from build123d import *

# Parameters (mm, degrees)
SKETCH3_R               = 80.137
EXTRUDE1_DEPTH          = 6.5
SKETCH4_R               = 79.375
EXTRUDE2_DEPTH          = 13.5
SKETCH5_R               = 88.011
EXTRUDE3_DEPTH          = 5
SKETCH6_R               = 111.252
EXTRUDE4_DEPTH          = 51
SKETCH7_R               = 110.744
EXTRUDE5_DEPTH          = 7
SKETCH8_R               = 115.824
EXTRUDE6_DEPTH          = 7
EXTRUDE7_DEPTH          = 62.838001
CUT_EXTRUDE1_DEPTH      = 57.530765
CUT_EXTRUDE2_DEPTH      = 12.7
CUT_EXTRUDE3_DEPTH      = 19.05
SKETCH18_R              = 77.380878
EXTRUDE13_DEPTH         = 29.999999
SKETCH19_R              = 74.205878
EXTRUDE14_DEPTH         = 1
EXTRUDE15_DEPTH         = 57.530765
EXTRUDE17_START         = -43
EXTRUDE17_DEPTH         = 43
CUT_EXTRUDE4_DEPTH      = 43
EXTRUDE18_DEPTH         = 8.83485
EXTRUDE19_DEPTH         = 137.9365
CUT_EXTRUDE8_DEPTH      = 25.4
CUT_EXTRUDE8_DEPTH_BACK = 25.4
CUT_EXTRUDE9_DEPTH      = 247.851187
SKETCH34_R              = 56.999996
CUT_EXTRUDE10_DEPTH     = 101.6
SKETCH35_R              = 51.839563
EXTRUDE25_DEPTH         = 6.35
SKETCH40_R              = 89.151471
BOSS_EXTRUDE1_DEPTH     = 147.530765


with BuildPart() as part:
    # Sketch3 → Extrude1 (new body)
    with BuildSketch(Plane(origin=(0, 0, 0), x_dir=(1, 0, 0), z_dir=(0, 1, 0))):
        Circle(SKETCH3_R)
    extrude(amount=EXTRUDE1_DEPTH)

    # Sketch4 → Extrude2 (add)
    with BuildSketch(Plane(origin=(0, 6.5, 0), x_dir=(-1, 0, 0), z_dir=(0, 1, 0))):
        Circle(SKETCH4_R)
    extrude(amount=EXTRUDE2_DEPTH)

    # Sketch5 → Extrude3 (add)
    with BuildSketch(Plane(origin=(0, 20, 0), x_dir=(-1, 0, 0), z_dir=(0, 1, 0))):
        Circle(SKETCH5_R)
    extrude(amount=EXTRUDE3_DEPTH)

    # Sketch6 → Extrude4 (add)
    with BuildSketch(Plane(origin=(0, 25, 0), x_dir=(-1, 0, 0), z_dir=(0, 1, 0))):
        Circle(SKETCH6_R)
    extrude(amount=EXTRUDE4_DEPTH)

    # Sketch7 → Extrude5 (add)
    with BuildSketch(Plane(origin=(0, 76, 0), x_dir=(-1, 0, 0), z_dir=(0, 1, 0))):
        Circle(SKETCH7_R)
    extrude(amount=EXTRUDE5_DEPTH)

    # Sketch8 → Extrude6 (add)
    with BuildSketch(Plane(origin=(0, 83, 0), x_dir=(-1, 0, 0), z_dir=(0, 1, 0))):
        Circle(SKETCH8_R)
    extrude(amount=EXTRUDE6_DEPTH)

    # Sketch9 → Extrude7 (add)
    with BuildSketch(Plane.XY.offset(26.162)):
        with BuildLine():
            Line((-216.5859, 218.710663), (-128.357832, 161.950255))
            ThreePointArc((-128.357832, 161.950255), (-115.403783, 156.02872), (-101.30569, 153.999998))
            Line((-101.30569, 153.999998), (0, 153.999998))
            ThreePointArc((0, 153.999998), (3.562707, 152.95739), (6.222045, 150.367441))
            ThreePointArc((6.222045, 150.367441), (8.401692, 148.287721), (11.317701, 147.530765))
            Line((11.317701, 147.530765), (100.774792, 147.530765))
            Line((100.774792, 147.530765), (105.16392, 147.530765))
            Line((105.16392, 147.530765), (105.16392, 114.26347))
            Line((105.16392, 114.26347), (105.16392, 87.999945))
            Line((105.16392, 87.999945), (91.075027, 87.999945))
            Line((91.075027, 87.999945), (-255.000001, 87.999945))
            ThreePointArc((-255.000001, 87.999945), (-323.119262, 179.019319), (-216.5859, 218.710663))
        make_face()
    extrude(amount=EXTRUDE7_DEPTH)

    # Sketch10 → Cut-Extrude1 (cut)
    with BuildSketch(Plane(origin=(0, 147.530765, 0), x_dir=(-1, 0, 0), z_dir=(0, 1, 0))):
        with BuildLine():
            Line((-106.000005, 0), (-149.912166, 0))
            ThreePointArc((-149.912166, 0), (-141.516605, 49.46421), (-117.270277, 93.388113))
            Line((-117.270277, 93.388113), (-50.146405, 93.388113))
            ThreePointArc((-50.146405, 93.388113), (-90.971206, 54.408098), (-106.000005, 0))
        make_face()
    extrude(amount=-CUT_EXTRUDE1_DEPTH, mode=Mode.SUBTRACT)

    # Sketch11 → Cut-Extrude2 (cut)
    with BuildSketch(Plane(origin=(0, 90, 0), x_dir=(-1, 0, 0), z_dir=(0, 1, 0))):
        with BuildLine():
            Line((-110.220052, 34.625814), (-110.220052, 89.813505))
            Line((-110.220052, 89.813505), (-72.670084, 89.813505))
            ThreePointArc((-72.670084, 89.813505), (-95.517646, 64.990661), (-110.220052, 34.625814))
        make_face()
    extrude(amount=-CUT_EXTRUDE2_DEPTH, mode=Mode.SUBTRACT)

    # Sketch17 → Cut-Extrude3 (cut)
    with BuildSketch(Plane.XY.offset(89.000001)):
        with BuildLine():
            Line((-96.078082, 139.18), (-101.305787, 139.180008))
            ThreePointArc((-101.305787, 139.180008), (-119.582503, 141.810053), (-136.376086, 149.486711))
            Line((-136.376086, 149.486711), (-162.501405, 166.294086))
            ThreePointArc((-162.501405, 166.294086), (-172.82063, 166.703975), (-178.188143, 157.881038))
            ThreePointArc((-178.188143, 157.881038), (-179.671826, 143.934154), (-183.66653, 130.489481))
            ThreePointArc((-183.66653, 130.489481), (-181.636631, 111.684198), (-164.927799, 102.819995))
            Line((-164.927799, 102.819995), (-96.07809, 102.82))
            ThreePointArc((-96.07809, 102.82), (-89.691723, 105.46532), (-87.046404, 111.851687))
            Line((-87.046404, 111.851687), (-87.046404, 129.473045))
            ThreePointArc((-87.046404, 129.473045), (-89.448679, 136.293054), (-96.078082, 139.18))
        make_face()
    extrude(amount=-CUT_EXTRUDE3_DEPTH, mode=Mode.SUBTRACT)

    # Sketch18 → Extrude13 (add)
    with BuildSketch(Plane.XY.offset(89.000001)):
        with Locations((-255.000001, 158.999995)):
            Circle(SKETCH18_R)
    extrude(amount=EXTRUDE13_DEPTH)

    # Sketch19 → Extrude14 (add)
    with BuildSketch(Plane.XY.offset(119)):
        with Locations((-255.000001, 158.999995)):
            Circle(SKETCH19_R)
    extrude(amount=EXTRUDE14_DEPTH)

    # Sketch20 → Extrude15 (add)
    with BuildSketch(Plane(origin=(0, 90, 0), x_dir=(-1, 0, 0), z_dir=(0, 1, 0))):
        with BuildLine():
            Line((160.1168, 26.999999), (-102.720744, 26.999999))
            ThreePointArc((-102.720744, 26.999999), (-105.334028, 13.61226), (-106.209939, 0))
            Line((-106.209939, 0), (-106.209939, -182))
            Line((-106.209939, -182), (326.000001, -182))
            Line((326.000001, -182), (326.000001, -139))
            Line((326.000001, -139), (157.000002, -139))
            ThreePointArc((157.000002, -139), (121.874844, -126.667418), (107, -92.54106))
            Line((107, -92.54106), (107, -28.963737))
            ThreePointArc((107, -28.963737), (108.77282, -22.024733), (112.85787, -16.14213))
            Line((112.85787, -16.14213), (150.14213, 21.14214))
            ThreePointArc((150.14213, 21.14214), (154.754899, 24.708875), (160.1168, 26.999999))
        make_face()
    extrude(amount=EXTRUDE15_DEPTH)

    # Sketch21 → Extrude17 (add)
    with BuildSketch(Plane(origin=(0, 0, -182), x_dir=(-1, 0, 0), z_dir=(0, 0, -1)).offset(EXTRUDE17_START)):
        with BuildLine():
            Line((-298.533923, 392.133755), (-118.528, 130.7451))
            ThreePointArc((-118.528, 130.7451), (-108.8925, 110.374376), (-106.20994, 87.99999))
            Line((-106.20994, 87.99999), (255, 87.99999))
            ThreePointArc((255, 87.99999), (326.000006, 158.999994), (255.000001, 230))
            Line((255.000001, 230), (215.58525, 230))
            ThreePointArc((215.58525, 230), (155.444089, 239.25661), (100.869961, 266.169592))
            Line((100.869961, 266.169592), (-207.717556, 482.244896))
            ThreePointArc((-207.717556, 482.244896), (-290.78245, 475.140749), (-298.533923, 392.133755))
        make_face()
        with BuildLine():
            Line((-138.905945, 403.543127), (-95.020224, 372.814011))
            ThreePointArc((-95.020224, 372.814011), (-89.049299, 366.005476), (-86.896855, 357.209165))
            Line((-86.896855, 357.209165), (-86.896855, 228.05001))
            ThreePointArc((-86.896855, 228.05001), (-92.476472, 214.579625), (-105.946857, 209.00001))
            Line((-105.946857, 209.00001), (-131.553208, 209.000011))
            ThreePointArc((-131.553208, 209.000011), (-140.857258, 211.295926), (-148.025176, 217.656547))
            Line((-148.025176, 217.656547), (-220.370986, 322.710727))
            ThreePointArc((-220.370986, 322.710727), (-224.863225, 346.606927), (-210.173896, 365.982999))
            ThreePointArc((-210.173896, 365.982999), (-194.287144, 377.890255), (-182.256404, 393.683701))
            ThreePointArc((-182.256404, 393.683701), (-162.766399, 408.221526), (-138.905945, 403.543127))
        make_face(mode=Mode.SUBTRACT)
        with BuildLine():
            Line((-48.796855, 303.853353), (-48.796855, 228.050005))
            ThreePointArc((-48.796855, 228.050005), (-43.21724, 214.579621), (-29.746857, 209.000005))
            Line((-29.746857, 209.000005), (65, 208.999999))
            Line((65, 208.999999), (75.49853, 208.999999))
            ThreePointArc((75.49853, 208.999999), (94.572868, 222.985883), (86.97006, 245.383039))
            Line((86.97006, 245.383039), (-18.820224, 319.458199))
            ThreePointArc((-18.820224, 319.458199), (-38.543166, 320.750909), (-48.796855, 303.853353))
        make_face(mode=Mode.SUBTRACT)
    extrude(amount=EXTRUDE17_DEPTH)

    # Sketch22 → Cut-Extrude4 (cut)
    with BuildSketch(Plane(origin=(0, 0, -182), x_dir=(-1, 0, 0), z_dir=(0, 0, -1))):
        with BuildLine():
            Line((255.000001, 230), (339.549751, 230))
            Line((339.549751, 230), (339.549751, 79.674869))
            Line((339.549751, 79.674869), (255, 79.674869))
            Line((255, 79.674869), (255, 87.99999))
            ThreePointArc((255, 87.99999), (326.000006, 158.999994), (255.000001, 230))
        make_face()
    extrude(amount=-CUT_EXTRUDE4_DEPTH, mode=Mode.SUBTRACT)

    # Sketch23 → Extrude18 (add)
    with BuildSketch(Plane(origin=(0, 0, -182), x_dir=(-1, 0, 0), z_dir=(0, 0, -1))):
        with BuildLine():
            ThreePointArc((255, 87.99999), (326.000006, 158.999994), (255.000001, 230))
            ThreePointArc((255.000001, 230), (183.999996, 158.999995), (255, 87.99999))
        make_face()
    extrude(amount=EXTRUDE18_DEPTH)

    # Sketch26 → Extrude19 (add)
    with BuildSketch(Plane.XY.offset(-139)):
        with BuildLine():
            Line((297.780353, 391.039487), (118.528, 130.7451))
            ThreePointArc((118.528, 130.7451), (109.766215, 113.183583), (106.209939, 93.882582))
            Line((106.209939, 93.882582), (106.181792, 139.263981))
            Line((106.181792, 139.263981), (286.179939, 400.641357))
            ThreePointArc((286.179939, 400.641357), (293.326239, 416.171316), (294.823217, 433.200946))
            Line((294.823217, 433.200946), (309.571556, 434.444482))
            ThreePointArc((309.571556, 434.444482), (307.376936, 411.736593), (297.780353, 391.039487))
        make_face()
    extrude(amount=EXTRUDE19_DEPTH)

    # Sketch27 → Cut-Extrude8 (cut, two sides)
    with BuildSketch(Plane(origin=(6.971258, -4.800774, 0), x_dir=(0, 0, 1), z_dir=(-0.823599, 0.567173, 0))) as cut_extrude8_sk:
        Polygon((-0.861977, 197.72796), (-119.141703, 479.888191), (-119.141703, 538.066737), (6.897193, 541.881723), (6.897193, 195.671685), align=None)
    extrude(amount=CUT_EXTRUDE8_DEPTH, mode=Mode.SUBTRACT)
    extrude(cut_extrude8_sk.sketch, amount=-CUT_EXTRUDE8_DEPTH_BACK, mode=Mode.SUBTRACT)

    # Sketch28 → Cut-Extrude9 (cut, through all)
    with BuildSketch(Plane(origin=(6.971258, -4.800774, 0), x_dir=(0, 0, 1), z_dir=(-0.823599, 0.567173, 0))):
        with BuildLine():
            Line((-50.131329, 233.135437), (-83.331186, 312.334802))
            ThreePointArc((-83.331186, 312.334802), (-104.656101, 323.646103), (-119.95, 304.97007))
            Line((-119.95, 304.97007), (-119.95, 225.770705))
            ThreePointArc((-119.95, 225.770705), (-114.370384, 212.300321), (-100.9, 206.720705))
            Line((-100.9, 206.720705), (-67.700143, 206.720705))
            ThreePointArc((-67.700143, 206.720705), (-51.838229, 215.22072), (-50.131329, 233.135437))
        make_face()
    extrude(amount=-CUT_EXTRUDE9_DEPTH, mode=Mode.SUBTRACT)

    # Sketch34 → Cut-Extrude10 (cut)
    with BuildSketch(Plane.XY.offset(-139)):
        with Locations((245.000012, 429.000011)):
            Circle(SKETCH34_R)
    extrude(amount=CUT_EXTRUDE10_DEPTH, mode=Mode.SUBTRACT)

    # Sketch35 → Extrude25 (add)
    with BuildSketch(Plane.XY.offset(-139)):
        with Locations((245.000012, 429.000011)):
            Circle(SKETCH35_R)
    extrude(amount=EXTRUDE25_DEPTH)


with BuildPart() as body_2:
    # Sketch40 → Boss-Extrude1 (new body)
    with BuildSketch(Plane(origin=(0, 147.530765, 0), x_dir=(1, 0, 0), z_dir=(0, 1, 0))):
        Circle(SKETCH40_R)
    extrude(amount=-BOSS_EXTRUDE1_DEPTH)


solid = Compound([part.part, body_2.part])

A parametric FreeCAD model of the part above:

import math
import FreeCAD as App
import Part
import Sketcher

V = App.Vector
Q = App.Units.Quantity

doc = App.newDocument("Part")
body = doc.addObject("PartDesign::Body", "Body")

# Sketch on XZ plane
sketch1 = body.newObject("Sketcher::SketchObject", "Sketch")
sketch1.AttachmentSupport = (doc.getObject("XZ_Plane"), [""])
sketch1.MapMode = "FlatFace"
sketch1.addGeometry(Part.Circle(V(0, 0, 0), V(0, 0, 1), 80), False)
sketch1.addConstraint(Sketcher.Constraint("Coincident", 0, 3, -1, 1))
sketch1.addConstraint(Sketcher.Constraint("Diameter", 0, Q("6.31 in")))
pad1 = body.newObject("PartDesign::Pad", "Pad")
pad1.Profile = sketch1
pad1.Length = 6.5
pad1.Reversed = True

# Sketch on XZ plane
sketch2 = body.newObject("Sketcher::SketchObject", "Sketch001")
sketch2.AttachmentSupport = (doc.getObject("XZ_Plane"), [""])
sketch2.MapMode = "FlatFace"
sketch2.AttachmentOffset = App.Placement(V(0, 0, -6.5), App.Rotation())
sketch2.addGeometry(Part.Circle(V(0, 0, 0), V(0, 0, 1), 79), False)
sketch2.addConstraint(Sketcher.Constraint("Coincident", 0, 3, -1, 1))
sketch2.addConstraint(Sketcher.Constraint("Diameter", 0, Q("6.25 in")))
pad2 = body.newObject("PartDesign::Pad", "Pad001")
pad2.Profile = sketch2
pad2.Length = 13.5
pad2.Reversed = True

# Sketch on XZ plane
sketch3 = body.newObject("Sketcher::SketchObject", "Sketch002")
sketch3.AttachmentSupport = (doc.getObject("XZ_Plane"), [""])
sketch3.MapMode = "FlatFace"
sketch3.AttachmentOffset = App.Placement(V(0, 0, -20), App.Rotation())
sketch3.addGeometry(Part.Circle(V(0, 0, 0), V(0, 0, 1), 88), False)
sketch3.addConstraint(Sketcher.Constraint("Coincident", 0, 3, -1, 1))
sketch3.addConstraint(Sketcher.Constraint("Diameter", 0, Q("6.93 in")))
pad3 = body.newObject("PartDesign::Pad", "Pad002")
pad3.Profile = sketch3
pad3.Length = 5
pad3.Reversed = True

# Sketch on XZ plane
sketch4 = body.newObject("Sketcher::SketchObject", "Sketch003")
sketch4.AttachmentSupport = (doc.getObject("XZ_Plane"), [""])
sketch4.MapMode = "FlatFace"
sketch4.AttachmentOffset = App.Placement(V(0, 0, -25), App.Rotation())
sketch4.addGeometry(Part.Circle(V(0, 0, 0), V(0, 0, 1), 111), False)
sketch4.addConstraint(Sketcher.Constraint("Coincident", 0, 3, -1, 1))
sketch4.addConstraint(Sketcher.Constraint("Diameter", 0, Q("8.76 in")))
pad4 = body.newObject("PartDesign::Pad", "Pad003")
pad4.Profile = sketch4
pad4.Length = 51
pad4.Reversed = True

# Sketch on XZ plane
sketch5 = body.newObject("Sketcher::SketchObject", "Sketch004")
sketch5.AttachmentSupport = (doc.getObject("XZ_Plane"), [""])
sketch5.MapMode = "FlatFace"
sketch5.AttachmentOffset = App.Placement(V(0, 0, -76), App.Rotation())
sketch5.addGeometry(Part.Circle(V(0, 0, 0), V(0, 0, 1), 111), False)
sketch5.addConstraint(Sketcher.Constraint("Coincident", 0, 3, -1, 1))
sketch5.addConstraint(Sketcher.Constraint("Diameter", 0, Q("8.72 in")))
pad5 = body.newObject("PartDesign::Pad", "Pad004")
pad5.Profile = sketch5
pad5.Length = 7
pad5.Reversed = True

# Sketch on XZ plane
sketch6 = body.newObject("Sketcher::SketchObject", "Sketch005")
sketch6.AttachmentSupport = (doc.getObject("XZ_Plane"), [""])
sketch6.MapMode = "FlatFace"
sketch6.AttachmentOffset = App.Placement(V(0, 0, -83), App.Rotation())
sketch6.addGeometry(Part.Circle(V(0, 0, 0), V(0, 0, 1), 116), False)
sketch6.addConstraint(Sketcher.Constraint("Coincident", 0, 3, -1, 1))
sketch6.addConstraint(Sketcher.Constraint("Diameter", 0, Q("9.12 in")))
pad6 = body.newObject("PartDesign::Pad", "Pad005")
pad6.Profile = sketch6
pad6.Length = 7
pad6.Reversed = True

# Sketch on XY plane
sketch7 = body.newObject("Sketcher::SketchObject", "Sketch006")
sketch7.AttachmentSupport = (doc.getObject("XY_Plane"), [""])
sketch7.MapMode = "FlatFace"
sketch7.AttachmentOffset = App.Placement(V(0, 0, 1.03 * 25.4), App.Rotation())
sketch7.addGeometry(Part.LineSegment(V(-128, 162, 0), V(-217, 219, 0)), False)
sketch7.addGeometry(Part.ArcOfCircle(Part.Circle(V(-255, 159, 0), V(0, 0, 1), 71), math.radians(57), math.radians(270)), False)
sketch7.addGeometry(Part.LineSegment(V(-255, 88, 0), V(105, 88, 0)), False)
sketch7.addGeometry(Part.LineSegment(V(105, 88, 0), V(105, 148, 0)), False)
sketch7.addGeometry(Part.LineSegment(V(105, 148, 0), V(11, 148, 0)), False)
sketch7.addGeometry(Part.ArcOfCircle(Part.Circle(V(11, 154, 0), V(0, 0, 1), 6), math.radians(-148), math.radians(-90)), False)
sketch7.addGeometry(Part.ArcOfCircle(Part.Circle(V(0, 146, 0), V(0, 0, 1), 8), math.radians(32), math.radians(88)), False)
sketch7.addGeometry(Part.LineSegment(V(0, 154, 0), V(-101, 154, 0)), False)
sketch7.addGeometry(Part.ArcOfCircle(Part.Circle(V(-101, 204, 0), V(0, 0, 1), 50), math.radians(-123), math.radians(-90)), False)
sketch7.addConstraint(Sketcher.Constraint("Tangent", 0, 2, 1, 1))
sketch7.addConstraint(Sketcher.Constraint("Tangent", 1, 2, 2, 1))
sketch7.addConstraint(Sketcher.Constraint("Coincident", 2, 2, 3, 1))
sketch7.addConstraint(Sketcher.Constraint("Coincident", 3, 2, 4, 1))
sketch7.addConstraint(Sketcher.Constraint("Tangent", 4, 2, 5, 2))
sketch7.addConstraint(Sketcher.Constraint("Tangent", 5, 1, 6, 1))
sketch7.addConstraint(Sketcher.Constraint("Coincident", 6, 2, 7, 1))
sketch7.addConstraint(Sketcher.Constraint("Tangent", 7, 2, 8, 2))
sketch7.addConstraint(Sketcher.Constraint("Tangent", 8, 1, 0, 1))
sketch7.addConstraint(Sketcher.Constraint("Horizontal", 2))
sketch7.addConstraint(Sketcher.Constraint("Vertical", 3))
sketch7.addConstraint(Sketcher.Constraint("Horizontal", 4))
sketch7.addConstraint(Sketcher.Constraint("Horizontal", 7))
sketch7.addConstraint(Sketcher.Constraint("PointOnObject", 6, 2, -2))
sketch7.addConstraint(Sketcher.Constraint("Radius", 1, Q("71.00005 mm")))
sketch7.addConstraint(Sketcher.Constraint("Radius", 5, Q("5.995121 mm")))
sketch7.addConstraint(Sketcher.Constraint("Radius", 6, Q("7.690791 mm")))
sketch7.addConstraint(Sketcher.Constraint("Radius", 8, Q("49.999972 mm")))
sketch7.addConstraint(Sketcher.Constraint("DistanceX", 2, 1, 2, 2, Q("360.163921 mm")))
sketch7.addConstraint(Sketcher.Constraint("DistanceX", 4, 2, 4, 1, Q("93.846219 mm")))
sketch7.addConstraint(Sketcher.Constraint("DistanceX", 7, 2, 7, 1, Q("101.30569 mm")))
sketch7.addConstraint(Sketcher.Constraint("DistanceY", 3, 1, 3, 2, Q("59.53082 mm")))
sketch7.addConstraint(Sketcher.Constraint("DistanceX", 1, 3, -1, 1, Q("255.000001 mm")))
sketch7.addConstraint(Sketcher.Constraint("DistanceX", 0, 2, -1, 1, Q("216.5859 mm")))
sketch7.addConstraint(Sketcher.Constraint("DistanceY", -1, 1, 6, 2, Q("153.999998 mm")))
pad7 = body.newObject("PartDesign::Pad", "Pad006")
pad7.Profile = sketch7
pad7.Length = 62.838001

# Sketch on XZ plane
sketch8 = body.newObject("Sketcher::SketchObject", "Sketch007")
sketch8.AttachmentSupport = (doc.getObject("XZ_Plane"), [""])
sketch8.MapMode = "FlatFace"
sketch8.AttachmentOffset = App.Placement(V(0, 0, -147.530765), App.Rotation())
sketch8.addGeometry(Part.LineSegment(V(150, 0, 0), V(106, 0, 0)), False)
sketch8.addGeometry(Part.ArcOfCircle(Part.Circle(V(0, 0, 0), V(0, 0, 1), 106), math.radians(0), math.radians(62)), False)
sketch8.addGeometry(Part.LineSegment(V(50, 93, 0), V(117, 93, 0)), False)
sketch8.addGeometry(Part.ArcOfCircle(Part.Circle(V(0, 0, 0), V(0, 0, 1), 150), math.radians(0), math.radians(39)), False)
sketch8.addConstraint(Sketcher.Constraint("Coincident", 0, 2, 1, 1))
sketch8.addConstraint(Sketcher.Constraint("Coincident", 1, 2, 2, 1))
sketch8.addConstraint(Sketcher.Constraint("Coincident", 2, 2, 3, 2))
sketch8.addConstraint(Sketcher.Constraint("Coincident", 3, 1, 0, 1))
sketch8.addConstraint(Sketcher.Constraint("Horizontal", 0))
sketch8.addConstraint(Sketcher.Constraint("Horizontal", 2))
sketch8.addConstraint(Sketcher.Constraint("Coincident", 1, 3, -1, 1))
sketch8.addConstraint(Sketcher.Constraint("Coincident", 3, 3, -1, 1))
sketch8.addConstraint(Sketcher.Constraint("PointOnObject", 0, 2, -1))
sketch8.addConstraint(Sketcher.Constraint("Radius", 1, Q("106.000003 mm")))
sketch8.addConstraint(Sketcher.Constraint("Radius", 3, Q("149.912163 mm")))
sketch8.addConstraint(Sketcher.Constraint("DistanceX", 2, 1, 2, 2, Q("67.123872 mm")))
pocket1 = body.newObject("PartDesign::Pocket", "Pocket")
pocket1.Profile = sketch8
pocket1.Length = 57.530765
pocket1.Reversed = True

# Sketch on XZ plane
sketch9 = body.newObject("Sketcher::SketchObject", "Sketch008")
sketch9.AttachmentSupport = (doc.getObject("XZ_Plane"), [""])
sketch9.MapMode = "FlatFace"
sketch9.AttachmentOffset = App.Placement(V(0, 0, -90), App.Rotation())
sketch9.addGeometry(Part.LineSegment(V(110, 90, 0), V(110, 35, 0)), False)
sketch9.addGeometry(Part.ArcOfCircle(Part.Circle(V(0, 0, 0), V(0, 0, 1), 116), math.radians(17), math.radians(51)), False)
sketch9.addGeometry(Part.LineSegment(V(73, 90, 0), V(110, 90, 0)), False)
sketch9.addConstraint(Sketcher.Constraint("Coincident", 0, 2, 1, 1))
sketch9.addConstraint(Sketcher.Constraint("Coincident", 1, 2, 2, 1))
sketch9.addConstraint(Sketcher.Constraint("Coincident", 2, 2, 0, 1))
sketch9.addConstraint(Sketcher.Constraint("Vertical", 0))
sketch9.addConstraint(Sketcher.Constraint("Horizontal", 2))
sketch9.addConstraint(Sketcher.Constraint("Radius", 1, Q("115.530988 mm")))
sketch9.addConstraint(Sketcher.Constraint("DistanceY", 0, 2, 0, 1, Q("55.187691 mm")))
sketch9.addConstraint(Sketcher.Constraint("DistanceX", 2, 1, 2, 2, Q("37.549968 mm")))
sketch9.addConstraint(Sketcher.Constraint("DistanceX", -1, 1, 0, 2, Q("110.220052 mm")))
sketch9.addConstraint(Sketcher.Constraint("DistanceY", -1, 1, 0, 2, Q("34.625814 mm")))
pocket2 = body.newObject("PartDesign::Pocket", "Pocket001")
pocket2.Profile = sketch9
pocket2.Length = Q("0.5 in")
pocket2.Reversed = True

# Sketch on XY plane
sketch10 = body.newObject("Sketcher::SketchObject", "Sketch009")
sketch10.AttachmentSupport = (doc.getObject("XY_Plane"), [""])
sketch10.MapMode = "FlatFace"
sketch10.AttachmentOffset = App.Placement(V(0, 0, 89.000001), App.Rotation())
sketch10.addGeometry(Part.LineSegment(V(-96.078082, 139.18, 0), V(-101.305787, 139.180008, 0)), False)
sketch10.addGeometry(Part.ArcOfCircle(Part.Circle(V(-101.305692, 203.999992, 0), V(0, 0, 1), 64.819984), math.radians(-122.754664), math.radians(-90.000084)), False)
sketch10.addGeometry(Part.LineSegment(V(-136.376086, 149.486711, 0), V(-162.501405, 166.294086, 0)), False)
sketch10.addGeometry(Part.ArcOfCircle(Part.Circle(V(-168.009222, 157.732756, 0), V(0, 0, 1), 10.180001), math.radians(57.245341), math.radians(179.165398)), False)
sketch10.addGeometry(Part.ArcOfCircle(Part.Circle(V(-255.000012, 158.999999, 0), V(0, 0, 1), 76.820019), math.radians(-21.785569), math.radians(-0.8346)), False)
sketch10.addGeometry(Part.ArcOfCircle(Part.Circle(V(-164.927795, 122.999998, 0), V(0, 0, 1), 20.180003), math.radians(158.214437), math.radians(269.999989)), False)
sketch10.addGeometry(Part.LineSegment(V(-164.927799, 102.819995, 0), V(-96.07809, 102.82, 0)), False)
sketch10.addGeometry(Part.ArcOfCircle(Part.Circle(V(-96.07809, 111.851686, 0), V(0, 0, 1), 9.031686), math.radians(-90.000002), math.radians(0.000008)), False)
sketch10.addGeometry(Part.LineSegment(V(-87.046404, 111.851687, 0), V(-87.046404, 129.473045, 0)), False)
sketch10.addGeometry(Part.ArcOfCircle(Part.Circle(V(-96.078096, 130.124821, 0), V(0, 0, 1), 9.055179), math.radians(-4.127617), math.radians(89.999911)), False)
sketch10.addConstraint(Sketcher.Constraint("Coincident", 0, 2, 1, 2))
sketch10.addConstraint(Sketcher.Constraint("Coincident", 1, 1, 2, 1))
sketch10.addConstraint(Sketcher.Constraint("Coincident", 2, 2, 3, 1))
sketch10.addConstraint(Sketcher.Constraint("Coincident", 3, 2, 4, 2))
sketch10.addConstraint(Sketcher.Constraint("Coincident", 4, 1, 5, 1))
sketch10.addConstraint(Sketcher.Constraint("Coincident", 5, 2, 6, 1))
sketch10.addConstraint(Sketcher.Constraint("Coincident", 6, 2, 7, 1))
sketch10.addConstraint(Sketcher.Constraint("Coincident", 7, 2, 8, 1))
sketch10.addConstraint(Sketcher.Constraint("Coincident", 8, 2, 9, 1))
sketch10.addConstraint(Sketcher.Constraint("Coincident", 9, 2, 0, 1))
sketch10.addConstraint(Sketcher.Constraint("Vertical", 8))
sketch10.addConstraint(Sketcher.Constraint("Radius", 3, Q("10.180001 mm")))
sketch10.addConstraint(Sketcher.Constraint("Radius", 4, Q("76.820019 mm")))
sketch10.addConstraint(Sketcher.Constraint("Radius", 9, Q("9.055179 mm")))
sketch10.addConstraint(Sketcher.Constraint("Radius", 1, Q("64.819984 mm")))
sketch10.addConstraint(Sketcher.Constraint("Radius", 5, Q("20.180003 mm")))
sketch10.addConstraint(Sketcher.Constraint("Radius", 7, Q("9.031686 mm")))
sketch10.addConstraint(Sketcher.Constraint("DistanceY", 8, 1, 8, 2, Q("17.621358 mm")))
sketch10.addConstraint(Sketcher.Constraint("DistanceY", -1, 1, 4, 3, Q("158.999999 mm")))
sketch10.addConstraint(Sketcher.Constraint("DistanceY", -1, 1, 5, 3, Q("122.999998 mm")))
sketch10.addConstraint(Sketcher.Constraint("DistanceX", 5, 2, -1, 1, Q("164.927799 mm")))
sketch10.addConstraint(Sketcher.Constraint("DistanceY", -1, 1, 6, 2, Q("102.82 mm")))
sketch10.addConstraint(Sketcher.Constraint("DistanceY", -1, 1, 9, 2, Q("139.18 mm")))
sketch10.addConstraint(Sketcher.Constraint("DistanceX", 5, 3, 9, 3, Q("68.849699 mm")))
sketch10.addConstraint(Sketcher.Constraint("DistanceX", 1, 1, 0, 2, Q("35.070299 mm")))
sketch10.addConstraint(Sketcher.Constraint("Distance", 6, Q("68.849709 mm")))
sketch10.addConstraint(Sketcher.Constraint("DistanceX", 3, 3, -1, 1, Q("168.009222 mm")))
sketch10.addConstraint(Sketcher.Constraint("DistanceX", 7, 3, -1, 1, Q("96.07809 mm")))
sketch10.addConstraint(Sketcher.Constraint("DistanceY", -1, 1, 1, 1, Q("149.486711 mm")))
sketch10.addConstraint(Sketcher.Constraint("DistanceX", 4, 1, -1, 1, Q("183.66653 mm")))
sketch10.addConstraint(Sketcher.Constraint("DistanceX", 9, 2, -1, 1, Q("96.078082 mm")))
sketch10.addConstraint(Sketcher.Constraint("DistanceX", 3, 3, 1, 3, Q("66.70353 mm")))
sketch10.addConstraint(Sketcher.Constraint("DistanceX", 4, 3, 3, 3, Q("86.99079 mm")))
sketch10.addConstraint(Sketcher.Constraint("DistanceY", 9, 3, 1, 3, Q("73.875171 mm")))
sketch10.addConstraint(Sketcher.Constraint("DistanceY", 3, 3, 2, 2, Q("8.56133 mm")))
sketch10.addConstraint(Sketcher.Constraint("DistanceX", 3, 2, 3, 3, Q("10.178921 mm")))
pocket3 = body.newObject("PartDesign::Pocket", "Pocket002")
pocket3.Profile = sketch10
pocket3.Length = Q("0.75 in")

# Sketch on XY plane
sketch11 = body.newObject("Sketcher::SketchObject", "Sketch010")
sketch11.AttachmentSupport = (doc.getObject("XY_Plane"), [""])
sketch11.MapMode = "FlatFace"
sketch11.AttachmentOffset = App.Placement(V(0, 0, 89.000001), App.Rotation())
sketch11.addGeometry(Part.Circle(V(-255, 159, 0), V(0, 0, 1), 77), False)
sketch11.addConstraint(Sketcher.Constraint("Diameter", 0, Q("154.761756 mm")))
sketch11.addConstraint(Sketcher.Constraint("DistanceX", 0, 3, -1, 1, Q("255.000001 mm")))
sketch11.addConstraint(Sketcher.Constraint("DistanceY", -1, 1, 0, 3, Q("158.999995 mm")))
pad8 = body.newObject("PartDesign::Pad", "Pad007")
pad8.Profile = sketch11
pad8.Length = 29.999999

# Sketch on XY plane
sketch12 = body.newObject("Sketcher::SketchObject", "Sketch011")
sketch12.AttachmentSupport = (doc.getObject("XY_Plane"), [""])
sketch12.MapMode = "FlatFace"
sketch12.AttachmentOffset = App.Placement(V(0, 0, 119), App.Rotation())
sketch12.addGeometry(Part.Circle(V(-255, 159, 0), V(0, 0, 1), 74), False)
sketch12.addConstraint(Sketcher.Constraint("Diameter", 0, Q("148.411756 mm")))
sketch12.addConstraint(Sketcher.Constraint("DistanceX", 0, 3, -1, 1, Q("255.000001 mm")))
sketch12.addConstraint(Sketcher.Constraint("DistanceY", -1, 1, 0, 3, Q("158.999995 mm")))
pad9 = body.newObject("PartDesign::Pad", "Pad008")
pad9.Profile = sketch12
pad9.Length = 1

# Sketch on XZ plane
sketch13 = body.newObject("Sketcher::SketchObject", "Sketch012")
sketch13.AttachmentSupport = (doc.getObject("XZ_Plane"), [""])
sketch13.MapMode = "FlatFace"
sketch13.AttachmentOffset = App.Placement(V(0, 0, -90), App.Rotation())
sketch13.addGeometry(Part.LineSegment(V(-160, 27, 0), V(103, 27, 0)), False)
sketch13.addGeometry(Part.ArcOfCircle(Part.Circle(V(0, 0, 0), V(0, 0, 1), 106), math.radians(0), math.radians(14.73)), False)
sketch13.addGeometry(Part.LineSegment(V(106, 0, 0), V(106, -182, 0)), False)
sketch13.addGeometry(Part.LineSegment(V(106, -182, 0), V(-326, -182, 0)), False)
sketch13.addGeometry(Part.LineSegment(V(-326, -182, 0), V(-326, -139, 0)), False)
sketch13.addGeometry(Part.LineSegment(V(-326, -139, 0), V(-157, -139, 0)), False)
sketch13.addGeometry(Part.ArcOfCircle(Part.Circle(V(-154, -93, 0), V(0, 0, 1), 47), math.radians(-94), math.radians(0)), False)
sketch13.addGeometry(Part.LineSegment(V(-107, -93, 0), V(-107, -29, 0)), False)
sketch13.addGeometry(Part.ArcOfCircle(Part.Circle(V(-127, -30, 0), V(0, 0, 1), 20), math.radians(4), math.radians(45)), False)
sketch13.addGeometry(Part.LineSegment(V(-113, -16, 0), V(-150, 21, 0)), False)
sketch13.addGeometry(Part.ArcOfCircle(Part.Circle(V(-166, 5, 0), V(0, 0, 1), 23), math.radians(45), math.radians(74)), False)
sketch13.addConstraint(Sketcher.Constraint("Coincident", 0, 2, 1, 2))
sketch13.addConstraint(Sketcher.Constraint("Tangent", 1, 1, 2, 1))
sketch13.addConstraint(Sketcher.Constraint("Coincident", 2, 2, 3, 1))
sketch13.addConstraint(Sketcher.Constraint("Coincident", 3, 2, 4, 1))
sketch13.addConstraint(Sketcher.Constraint("Coincident", 4, 2, 5, 1))
sketch13.addConstraint(Sketcher.Constraint("Coincident", 5, 2, 6, 1))
sketch13.addConstraint(Sketcher.Constraint("Tangent", 6, 2, 7, 1))
sketch13.addConstraint(Sketcher.Constraint("Coincident", 7, 2, 8, 1))
sketch13.addConstraint(Sketcher.Constraint("Tangent", 8, 2, 9, 1))
sketch13.addConstraint(Sketcher.Constraint("Tangent", 9, 2, 10, 1))
sketch13.addConstraint(Sketcher.Constraint("Coincident", 10, 2, 0, 1))
sketch13.addConstraint(Sketcher.Constraint("Horizontal", 0))
sketch13.addConstraint(Sketcher.Constraint("Vertical", 2))
sketch13.addConstraint(Sketcher.Constraint("Horizontal", 3))
sketch13.addConstraint(Sketcher.Constraint("Vertical", 4))
sketch13.addConstraint(Sketcher.Constraint("Horizontal", 5))
sketch13.addConstraint(Sketcher.Constraint("Vertical", 7))
sketch13.addConstraint(Sketcher.Constraint("PointOnObject", 1, 1, -1))
sketch13.addConstraint(Sketcher.Constraint("Angle", 9, Q("134.999992 deg")))
sketch13.addConstraint(Sketcher.Constraint("Radius", 1, Q("106.209991 mm")))
sketch13.addConstraint(Sketcher.Constraint("Radius", 6, Q("46.584332 mm")))
sketch13.addConstraint(Sketcher.Constraint("DistanceX", 5, 1, 5, 2, Q("168.999999 mm")))
sketch13.addConstraint(Sketcher.Constraint("DistanceY", 2, 2, 2, 1, Q("182 mm")))
sketch13.addConstraint(Sketcher.Constraint("DistanceY", 4, 1, 4, 2, Q("43 mm")))
sketch13.addConstraint(Sketcher.Constraint("Radius", 8, Q("20.177094 mm")))
sketch13.addConstraint(Sketcher.Constraint("Radius", 10, Q("22.983044 mm")))
sketch13.addConstraint(Sketcher.Constraint("DistanceX", 3, 2, 3, 1, Q("432.20994 mm")))
sketch13.addConstraint(Sketcher.Constraint("DistanceX", 10, 3, -1, 1, Q("166.3936 mm")))
sketch13.addConstraint(Sketcher.Constraint("DistanceY", -1, 1, 0, 2, Q("26.999999 mm")))
sketch13.addConstraint(Sketcher.Constraint("DistanceX", 3, 2, -1, 1, Q("326.000001 mm")))
sketch13.addConstraint(Sketcher.Constraint("DistanceX", 6, 2, -1, 1, Q("107 mm")))
sketch13.addConstraint(Sketcher.Constraint("DistanceX", 10, 2, -1, 1, Q("160.1168 mm")))
sketch13.addConstraint(Sketcher.Constraint("DistanceX", 6, 3, 8, 3, Q("26.459101 mm")))
pad10 = body.newObject("PartDesign::Pad", "Pad009")
pad10.Profile = sketch13
pad10.Length = 57.530765
pad10.Reversed = True

# Sketch on XY plane
sketch14 = body.newObject("Sketcher::SketchObject", "Sketch013")
sketch14.AttachmentSupport = (doc.getObject("XY_Plane"), [""])
sketch14.MapMode = "FlatFace"
sketch14.AttachmentOffset = App.Placement(V(0, 0, -139), App.Rotation())
sketch14.addGeometry(Part.LineSegment(V(299, 392, 0), V(119, 131, 0)), False)
sketch14.addGeometry(Part.ArcOfCircle(Part.Circle(V(176, 91, 0), V(0, 0, 1), 70), math.radians(145), math.radians(182)), False)
sketch14.addGeometry(Part.LineSegment(V(106, 88, 0), V(-255, 88, 0)), False)
sketch14.addGeometry(Part.ArcOfCircle(Part.Circle(V(-255, 159, 0), V(0, 0, 1), 71), math.radians(90), math.radians(270)), False)
sketch14.addGeometry(Part.LineSegment(V(-255, 230, 0), V(-216, 230, 0)), False)
sketch14.addGeometry(Part.ArcOfCircle(Part.Circle(V(-216, 430, 0), V(0, 0, 1), 200), math.radians(-90), math.radians(-55)), False)
sketch14.addGeometry(Part.LineSegment(V(-101, 266, 0), V(208, 482, 0)), False)
sketch14.addGeometry(Part.ArcOfCircle(Part.Circle(V(245, 429, 0), V(0, 0, 1), 65), math.radians(-35), math.radians(125)), False)
sketch14.addGeometry(Part.LineSegment(V(49, 228, 0), V(49, 304, 0)), False)
sketch14.addGeometry(Part.ArcOfCircle(Part.Circle(V(30, 304, 0), V(0, 0, 1), 19), math.radians(0), math.radians(125)), False)
sketch14.addGeometry(Part.LineSegment(V(19, 319, 0), V(-87, 245, 0)), False)
sketch14.addGeometry(Part.ArcOfCircle(Part.Circle(V(-75, 229, 0), V(0, 0, 1), 20), math.radians(125), math.radians(270)), False)
sketch14.addGeometry(Part.LineSegment(V(-75, 209, 0), V(-65, 209, 0)), False)
sketch14.addGeometry(Part.LineSegment(V(-65, 209, 0), V(30, 209, 0)), False)
sketch14.addGeometry(Part.ArcOfCircle(Part.Circle(V(30, 228, 0), V(0, 0, 1), 19), math.radians(-90), math.radians(0)), False)
sketch14.addGeometry(Part.ArcOfCircle(Part.Circle(V(156, 379, 0), V(0, 0, 1), 30), math.radians(29), math.radians(125)), False)
sketch14.addGeometry(Part.LineSegment(V(139, 404, 0), V(95, 373, 0)), False)
sketch14.addGeometry(Part.ArcOfCircle(Part.Circle(V(106, 357, 0), V(0, 0, 1), 19), math.radians(125), math.radians(180)), False)
sketch14.addGeometry(Part.LineSegment(V(87, 357, 0), V(87, 228, 0)), False)
sketch14.addGeometry(Part.ArcOfCircle(Part.Circle(V(106, 228, 0), V(0, 0, 1), 19), math.radians(-180), math.radians(-90)), False)
sketch14.addGeometry(Part.LineSegment(V(106, 209, 0), V(132, 209, 0)), False)
sketch14.addGeometry(Part.ArcOfCircle(Part.Circle(V(132, 229, 0), V(0, 0, 1), 20), math.radians(-90), math.radians(-35)), False)
sketch14.addGeometry(Part.LineSegment(V(148, 218, 0), V(220, 323, 0)), False)
sketch14.addGeometry(Part.ArcOfCircle(Part.Circle(V(196, 340, 0), V(0, 0, 1), 30), math.radians(-35), math.radians(61)), False)
sketch14.addGeometry(Part.ArcOfCircle(Part.Circle(V(245, 429, 0), V(0, 0, 1), 72), math.radians(-151), math.radians(-119)), False)
sketch14.addConstraint(Sketcher.Constraint("Tangent", 0, 2, 1, 1))
sketch14.addConstraint(Sketcher.Constraint("Coincident", 1, 2, 2, 1))
sketch14.addConstraint(Sketcher.Constraint("Tangent", 2, 2, 3, 2))
sketch14.addConstraint(Sketcher.Constraint("Tangent", 3, 1, 4, 1))
sketch14.addConstraint(Sketcher.Constraint("Tangent", 4, 2, 5, 1))
sketch14.addConstraint(Sketcher.Constraint("Tangent", 5, 2, 6, 1))
sketch14.addConstraint(Sketcher.Constraint("Tangent", 6, 2, 7, 2))
sketch14.addConstraint(Sketcher.Constraint("Tangent", 7, 1, 0, 1))
sketch14.addConstraint(Sketcher.Constraint("Tangent", 8, 2, 9, 1))
sketch14.addConstraint(Sketcher.Constraint("Tangent", 9, 2, 10, 1))
sketch14.addConstraint(Sketcher.Constraint("Tangent", 10, 2, 11, 1))
sketch14.addConstraint(Sketcher.Constraint("Tangent", 11, 2, 12, 1))
sketch14.addConstraint(Sketcher.Constraint("Coincident", 12, 2, 13, 1))
sketch14.addConstraint(Sketcher.Constraint("Tangent", 13, 2, 14, 1))
sketch14.addConstraint(Sketcher.Constraint("Tangent", 14, 2, 8, 1))
sketch14.addConstraint(Sketcher.Constraint("Tangent", 15, 2, 16, 1))
sketch14.addConstraint(Sketcher.Constraint("Tangent", 16, 2, 17, 1))
sketch14.addConstraint(Sketcher.Constraint("Tangent", 17, 2, 18, 1))
sketch14.addConstraint(Sketcher.Constraint("Tangent", 18, 2, 19, 1))
sketch14.addConstraint(Sketcher.Constraint("Tangent", 19, 2, 20, 1))
sketch14.addConstraint(Sketcher.Constraint("Tangent", 20, 2, 21, 1))
sketch14.addConstraint(Sketcher.Constraint("Tangent", 21, 2, 22, 1))
sketch14.addConstraint(Sketcher.Constraint("Tangent", 22, 2, 23, 1))
sketch14.addConstraint(Sketcher.Constraint("Tangent", 23, 2, 24, 2))
sketch14.addConstraint(Sketcher.Constraint("Tangent", 24, 1, 15, 1))
sketch14.addConstraint(Sketcher.Constraint("Horizontal", 2))
sketch14.addConstraint(Sketcher.Constraint("Horizontal", 4))
sketch14.addConstraint(Sketcher.Constraint("Vertical", 8))
sketch14.addConstraint(Sketcher.Constraint("Horizontal", 12))
sketch14.addConstraint(Sketcher.Constraint("Vertical", 18))
sketch14.addConstraint(Sketcher.Constraint("Horizontal", 20))
sketch14.addConstraint(Sketcher.Constraint("Coincident", 24, 3, 7, 3))
sketch14.addConstraint(Sketcher.Constraint("Equal", 9, 14))
sketch14.addConstraint(Sketcher.Constraint("Equal", 9, 17))
sketch14.addConstraint(Sketcher.Constraint("Equal", 17, 19))
sketch14.addConstraint(Sketcher.Constraint("Parallel", 6, 10))
sketch14.addConstraint(Sketcher.Constraint("Parallel", 10, 16))
sketch14.addConstraint(Sketcher.Constraint("Parallel", 0, 22))
sketch14.addConstraint(Sketcher.Constraint("Vertical", 14, 3, 13, 2))
sketch14.addConstraint(Sketcher.Constraint("Radius", 9, Q("0.75 in")))
sketch14.addConstraint(Sketcher.Constraint("Angle", 6, Q("35 deg")))
sketch14.addConstraint(Sketcher.Constraint("DistanceX", 9, 3, 17, 3, Q("3 in")))
sketch14.addConstraint(Sketcher.Constraint("Radius", 5, Q("199.999999 mm")))
sketch14.addConstraint(Sketcher.Constraint("Radius", 7, Q("65 mm")))
sketch14.addConstraint(Sketcher.Constraint("Radius", 11, Q("20 mm")))
sketch14.addConstraint(Sketcher.Constraint("Radius", 15, Q("30 mm")))
sketch14.addConstraint(Sketcher.Constraint("DistanceY", 13, 2, 18, 2, Q("0.7500002 in")))
sketch14.addConstraint(Sketcher.Constraint("Radius", 1, Q("70.179286 mm")))
sketch14.addConstraint(Sketcher.Constraint("Radius", 3, Q("71.000005 mm")))
sketch14.addConstraint(Sketcher.Constraint("Radius", 21, Q("19.999995 mm")))
sketch14.addConstraint(Sketcher.Constraint("Radius", 23, Q("29.999995 mm")))
sketch14.addConstraint(Sketcher.Constraint("Radius", 24, Q("72.000013 mm")))
sketch14.addConstraint(Sketcher.Constraint("DistanceX", 3, 3, 1, 3, Q("16.9814001 in")))
sketch14.addConstraint(Sketcher.Constraint("Distance", 6, Q("376.715798 mm")))
sketch14.addConstraint(Sketcher.Constraint("DistanceX", 2, 2, 2, 1, Q("361.20994 mm")))
sketch14.addConstraint(Sketcher.Constraint("DistanceX", 4, 1, 4, 2, Q("39.414751 mm")))
sketch14.addConstraint(Sketcher.Constraint("DistanceX", 12, 1, 12, 2, Q("10.49853 mm")))
sketch14.addConstraint(Sketcher.Constraint("DistanceX", 20, 1, 20, 2, Q("25.606351 mm")))
sketch14.addConstraint(Sketcher.Constraint("DistanceY", 8, 1, 8, 2, Q("75.803348 mm")))
sketch14.addConstraint(Sketcher.Constraint("DistanceX", 3, 3, -1, 1, Q("255.000001 mm")))
sketch14.addConstraint(Sketcher.Constraint("DistanceY", -1, 1, 5, 3, Q("429.999999 mm")))
sketch14.addConstraint(Sketcher.Constraint("DistanceY", -1, 1, 11, 3, Q("228.999999 mm")))
sketch14.addConstraint(Sketcher.Constraint("DistanceX", 12, 2, -1, 1, Q("65 mm")))
sketch14.addConstraint(Sketcher.Constraint("DistanceY", -1, 1, 24, 1, Q("393.683701 mm")))
pad11 = body.newObject("PartDesign::Pad", "Pad010")
pad11.Profile = sketch14
pad11.Length = 43
pad11.Reversed = True

# Sketch on XY plane
sketch15 = body.newObject("Sketcher::SketchObject", "Sketch014")
sketch15.AttachmentSupport = (doc.getObject("XY_Plane"), [""])
sketch15.MapMode = "FlatFace"
sketch15.AttachmentOffset = App.Placement(V(0, 0, -182), App.Rotation())
sketch15.addGeometry(Part.LineSegment(V(-340, 230, 0), V(-255, 230, 0)), False)
sketch15.addGeometry(Part.ArcOfCircle(Part.Circle(V(-255, 159, 0), V(0, 0, 1), 71), math.radians(90), math.radians(270)), False)
sketch15.addGeometry(Part.LineSegment(V(-255, 88, 0), V(-255, 80, 0)), False)
sketch15.addGeometry(Part.LineSegment(V(-255, 80, 0), V(-340, 80, 0)), False)
sketch15.addGeometry(Part.LineSegment(V(-340, 80, 0), V(-340, 230, 0)), False)
sketch15.addConstraint(Sketcher.Constraint("Tangent", 0, 2, 1, 1))
sketch15.addConstraint(Sketcher.Constraint("Coincident", 1, 2, 2, 1))
sketch15.addConstraint(Sketcher.Constraint("Coincident", 2, 2, 3, 1))
sketch15.addConstraint(Sketcher.Constraint("Coincident", 3, 2, 4, 1))
sketch15.addConstraint(Sketcher.Constraint("Coincident", 4, 2, 0, 1))
sketch15.addConstraint(Sketcher.Constraint("Horizontal", 0))
sketch15.addConstraint(Sketcher.Constraint("Vertical", 2))
sketch15.addConstraint(Sketcher.Constraint("Horizontal", 3))
sketch15.addConstraint(Sketcher.Constraint("Vertical", 4))
sketch15.addConstraint(Sketcher.Constraint("Vertical", 0, 2, 1, 2))
sketch15.addConstraint(Sketcher.Constraint("Radius", 1, Q("71.000005 mm")))
sketch15.addConstraint(Sketcher.Constraint("DistanceX", 0, 1, 0, 2, Q("84.54975 mm")))
sketch15.addConstraint(Sketcher.Constraint("DistanceY", 2, 2, 2, 1, Q("8.325121 mm")))
sketch15.addConstraint(Sketcher.Constraint("DistanceX", 1, 3, -1, 1, Q("255.000001 mm")))
sketch15.addConstraint(Sketcher.Constraint("DistanceY", -1, 1, 0, 2, Q("230 mm")))
pocket4 = body.newObject("PartDesign::Pocket", "Pocket003")
pocket4.Profile = sketch15
pocket4.Length = 43
pocket4.Reversed = True

# Sketch on XY plane
sketch16 = body.newObject("Sketcher::SketchObject", "Sketch015")
sketch16.AttachmentSupport = (doc.getObject("XY_Plane"), [""])
sketch16.MapMode = "FlatFace"
sketch16.AttachmentOffset = App.Placement(V(0, 0, -182), App.Rotation())
sketch16.addGeometry(Part.Circle(V(-255, 159, 0), V(0, 0, 1), 71), False)
sketch16.addConstraint(Sketcher.Constraint("Diameter", 0, Q("142.00001 mm")))
sketch16.addConstraint(Sketcher.Constraint("DistanceX", 0, 3, -1, 1, Q("255.000001 mm")))
sketch16.addConstraint(Sketcher.Constraint("DistanceY", -1, 1, 0, 3, Q("158.999995 mm")))
pad12 = body.newObject("PartDesign::Pad", "Pad011")
pad12.Profile = sketch16
pad12.Length = 8.83485
pad12.Reversed = True

# Sketch on XY plane
sketch17 = body.newObject("Sketcher::SketchObject", "Sketch016")
sketch17.AttachmentSupport = (doc.getObject("XY_Plane"), [""])
sketch17.MapMode = "FlatFace"
sketch17.AttachmentOffset = App.Placement(V(0, 0, -139), App.Rotation())
sketch17.addGeometry(Part.LineSegment(V(118.528, 130.7451, 0), V(297.780353, 391.039487, 0)), False)
sketch17.addGeometry(Part.ArcOfCircle(Part.Circle(V(241.894892, 429.525146, 0), V(0, 0, 1), 67.855219), math.radians(-34.553336), math.radians(4.15745)), False)
sketch17.addGeometry(Part.LineSegment(V(309.571556, 434.444482, 0), V(294.823217, 433.200946, 0)), False)
sketch17.addGeometry(Part.ArcOfCircle(Part.Circle(V(245.000012, 429.00001, 0), V(0, 0, 1), 49.999996), math.radians(-34.553333), math.radians(4.8196)), False)
sketch17.addGeometry(Part.LineSegment(V(286.179939, 400.641357, 0), V(106.181792, 139.263981, 0)), False)
sketch17.addGeometry(Part.LineSegment(V(106.181792, 139.263981, 0), V(106.209939, 93.882582, 0)), False)
sketch17.addGeometry(Part.ArcOfCircle(Part.Circle(V(176.327554, 90.941298, 0), V(0, 0, 1), 70.179278), math.radians(145.446665), math.radians(177.597973)), False)
sketch17.addConstraint(Sketcher.Constraint("Coincident", 0, 2, 1, 1))
sketch17.addConstraint(Sketcher.Constraint("Coincident", 1, 2, 2, 1))
sketch17.addConstraint(Sketcher.Constraint("Coincident", 2, 2, 3, 2))
sketch17.addConstraint(Sketcher.Constraint("Coincident", 3, 1, 4, 1))
sketch17.addConstraint(Sketcher.Constraint("Coincident", 4, 2, 5, 1))
sketch17.addConstraint(Sketcher.Constraint("Coincident", 5, 2, 6, 2))
sketch17.addConstraint(Sketcher.Constraint("Coincident", 6, 1, 0, 1))
sketch17.addConstraint(Sketcher.Constraint("Radius", 1, Q("67.855219 mm")))
sketch17.addConstraint(Sketcher.Constraint("Radius", 6, Q("70.179278 mm")))
sketch17.addConstraint(Sketcher.Constraint("Radius", 3, Q("49.999996 mm")))
sketch17.addConstraint(Sketcher.Constraint("DistanceY", 0, 2, 2, 2, Q("1.6599 in")))
sketch17.addConstraint(Sketcher.Constraint("DistanceY", -1, 1, 6, 3, Q("90.941298 mm")))
sketch17.addConstraint(Sketcher.Constraint("DistanceX", -1, 1, 6, 1, Q("118.528 mm")))
sketch17.addConstraint(Sketcher.Constraint("DistanceY", -1, 1, 6, 1, Q("130.7451 mm")))
sketch17.addConstraint(Sketcher.Constraint("DistanceX", 6, 3, 0, 2, Q("121.452799 mm")))
sketch17.addConstraint(Sketcher.Constraint("DistanceY", 1, 3, 2, 2, Q("3.6758 mm")))
sketch17.addConstraint(Sketcher.Constraint("DistanceX", 4, 2, 1, 3, Q("135.7131 mm")))
sketch17.addConstraint(Sketcher.Constraint("DistanceY", 5, 2, 4, 2, Q("45.381399 mm")))
sketch17.addConstraint(Sketcher.Constraint("DistanceX", 5, 2, 3, 1, Q("179.97 mm")))
sketch17.addConstraint(Sketcher.Constraint("Distance", 0, Q("316.045209 mm")))
sketch17.addConstraint(Sketcher.Constraint("Distance", 2, Q("14.800672 mm")))
sketch17.addConstraint(Sketcher.Constraint("Distance", 4, Q("317.360151 mm")))
sketch17.addConstraint(Sketcher.Constraint("DistanceY", -1, 1, 3, 3, Q("429.00001 mm")))
sketch17.addConstraint(Sketcher.Constraint("DistanceY", -1, 1, 1, 2, Q("434.444482 mm")))
pad13 = body.newObject("PartDesign::Pad", "Pad012")
pad13.Profile = sketch17
pad13.Length = 137.9365

# Sketch on an angled plane
sketch18 = body.newObject("Sketcher::SketchObject", "Sketch017")
sketch18.Placement = App.Placement(V(6.971258, -4.800774, 0), App.Rotation(V(0, 0, 1), V(0.567172851, 0.823598784, 0), V(-0.823598784, 0.567172851, 0), "ZXY"))
sketch18.addGeometry(Part.LineSegment(V(-119, 480, 0), V(-1, 198, 0)), False)
sketch18.addGeometry(Part.LineSegment(V(-1, 198, 0), V(7, 196, 0)), False)
sketch18.addGeometry(Part.LineSegment(V(7, 196, 0), V(7, 542, 0)), False)
sketch18.addGeometry(Part.LineSegment(V(7, 542, 0), V(-119, 538, 0)), False)
sketch18.addGeometry(Part.LineSegment(V(-119, 538, 0), V(-119, 480, 0)), False)
sketch18.addConstraint(Sketcher.Constraint("Coincident", 0, 2, 1, 1))
sketch18.addConstraint(Sketcher.Constraint("Coincident", 1, 2, 2, 1))
sketch18.addConstraint(Sketcher.Constraint("Coincident", 2, 2, 3, 1))
sketch18.addConstraint(Sketcher.Constraint("Coincident", 3, 2, 4, 1))
sketch18.addConstraint(Sketcher.Constraint("Coincident", 4, 2, 0, 1))
sketch18.addConstraint(Sketcher.Constraint("Vertical", 2))
sketch18.addConstraint(Sketcher.Constraint("Vertical", 4))
sketch18.addConstraint(Sketcher.Constraint("Distance", 3, Q("126.096619 mm")))
sketch18.addConstraint(Sketcher.Constraint("DistanceY", 2, 1, 2, 2, Q("346.210038 mm")))
sketch18.addConstraint(Sketcher.Constraint("DistanceY", 4, 2, 4, 1, Q("58.178546 mm")))
sketch18.addConstraint(Sketcher.Constraint("DistanceY", -1, 1, 0, 2, Q("197.72796 mm")))
sketch18.addConstraint(Sketcher.Constraint("DistanceY", -1, 1, 4, 2, Q("479.888191 mm")))
sketch18.addConstraint(Sketcher.Constraint("DistanceX", 0, 2, 1, 2, Q("7.75917 mm")))
sketch18.addConstraint(Sketcher.Constraint("DistanceY", 1, 2, 3, 2, Q("342.395052 mm")))
sketch18.addConstraint(Sketcher.Constraint("DistanceX", 0, 2, -1, 1, Q("0.861977 mm")))
pocket5 = body.newObject("PartDesign::Pocket", "Pocket004")
pocket5.Profile = sketch18
pocket5.Type = "ThroughAll"
pocket5.Midplane = True

# Sketch on an angled plane
sketch19 = body.newObject("Sketcher::SketchObject", "Sketch018")
sketch19.Placement = App.Placement(V(6.971258, -4.800774, 0), App.Rotation(V(0, 0, 1), V(0.567172851, 0.823598784, 0), V(-0.823598784, 0.567172851, 0), "ZXY"))
sketch19.addGeometry(Part.LineSegment(V(-50, 233, 0), V(-83, 312, 0)), False)
sketch19.addGeometry(Part.ArcOfCircle(Part.Circle(V(-101, 305, 0), V(0, 0, 1), 19), math.radians(23), math.radians(180)), False)
sketch19.addGeometry(Part.LineSegment(V(-120, 305, 0), V(-120, 226, 0)), False)
sketch19.addGeometry(Part.ArcOfCircle(Part.Circle(V(-101, 226, 0), V(0, 0, 1), 19), math.radians(-180), math.radians(-90)), False)
sketch19.addGeometry(Part.LineSegment(V(-101, 207, 0), V(-68, 207, 0)), False)
sketch19.addGeometry(Part.ArcOfCircle(Part.Circle(V(-68, 226, 0), V(0, 0, 1), 19), math.radians(-90), math.radians(23)), False)
sketch19.addConstraint(Sketcher.Constraint("Tangent", 0, 2, 1, 1))
sketch19.addConstraint(Sketcher.Constraint("Tangent", 1, 2, 2, 1))
sketch19.addConstraint(Sketcher.Constraint("Tangent", 2, 2, 3, 1))
sketch19.addConstraint(Sketcher.Constraint("Tangent", 3, 2, 4, 1))
sketch19.addConstraint(Sketcher.Constraint("Tangent", 4, 2, 5, 1))
sketch19.addConstraint(Sketcher.Constraint("Tangent", 5, 2, 0, 1))
sketch19.addConstraint(Sketcher.Constraint("Vertical", 2))
sketch19.addConstraint(Sketcher.Constraint("Horizontal", 4))
sketch19.addConstraint(Sketcher.Constraint("Equal", 1, 3))
sketch19.addConstraint(Sketcher.Constraint("Equal", 3, 5))
sketch19.addConstraint(Sketcher.Constraint("Radius", 1, Q("0.75 in")))
sketch19.addConstraint(Sketcher.Constraint("DistanceX", 1, 3, -1, 1, Q("100.9 mm")))
sketch19.addConstraint(Sketcher.Constraint("DistanceY", -1, 1, 0, 2, Q("312.334802 mm")))
sketch19.addConstraint(Sketcher.Constraint("Distance", 0, Q("85.876481 mm")))
sketch19.addConstraint(Sketcher.Constraint("DistanceX", 4, 1, 4, 2, Q("33.199857 mm")))
pocket6 = body.newObject("PartDesign::Pocket", "Pocket005")
pocket6.Profile = sketch19
pocket6.Type = "ThroughAll"

# Sketch on XY plane
sketch20 = body.newObject("Sketcher::SketchObject", "Sketch019")
sketch20.AttachmentSupport = (doc.getObject("XY_Plane"), [""])
sketch20.MapMode = "FlatFace"
sketch20.AttachmentOffset = App.Placement(V(0, 0, -139), App.Rotation())
sketch20.addGeometry(Part.Circle(V(245, 429, 0), V(0, 0, 1), 57), False)
sketch20.addConstraint(Sketcher.Constraint("Diameter", 0, Q("113.999992 mm")))
sketch20.addConstraint(Sketcher.Constraint("DistanceX", -1, 1, 0, 3, Q("245.000012 mm")))
sketch20.addConstraint(Sketcher.Constraint("DistanceY", -1, 1, 0, 3, Q("429.000011 mm")))
pocket7 = body.newObject("PartDesign::Pocket", "Pocket006")
pocket7.Profile = sketch20
pocket7.Length = Q("4 in")
pocket7.Reversed = True

# Sketch on XY plane
sketch21 = body.newObject("Sketcher::SketchObject", "Sketch020")
sketch21.AttachmentSupport = (doc.getObject("XY_Plane"), [""])
sketch21.MapMode = "FlatFace"
sketch21.AttachmentOffset = App.Placement(V(0, 0, -139), App.Rotation())
sketch21.addGeometry(Part.Circle(V(245, 429, 0), V(0, 0, 1), 52), False)
sketch21.addConstraint(Sketcher.Constraint("Diameter", 0, Q("103.679126 mm")))
sketch21.addConstraint(Sketcher.Constraint("DistanceX", -1, 1, 0, 3, Q("245.000012 mm")))
sketch21.addConstraint(Sketcher.Constraint("DistanceY", -1, 1, 0, 3, Q("429.000011 mm")))
pad14 = body.newObject("PartDesign::Pad", "Pad013")
pad14.Profile = sketch21
pad14.Length = Q("0.25 in")
body2 = doc.addObject("PartDesign::Body", "Body001")

# Sketch on XZ plane
sketch22 = body2.newObject("Sketcher::SketchObject", "Sketch021")
sketch22.AttachmentSupport = (doc.getObject("XZ_Plane001"), [""])
sketch22.MapMode = "FlatFace"
sketch22.AttachmentOffset = App.Placement(V(0, 0, -147.530765), App.Rotation())
sketch22.addGeometry(Part.Circle(V(0, 0, 0), V(0, 0, 1), 89), False)
sketch22.addConstraint(Sketcher.Constraint("Coincident", 0, 3, -1, 1))
sketch22.addConstraint(Sketcher.Constraint("Diameter", 0, Q("178.302942 mm")))
pad15 = body2.newObject("PartDesign::Pad", "Pad014")
pad15.Profile = sketch22
pad15.Length = 147.530765

doc.recompute()
